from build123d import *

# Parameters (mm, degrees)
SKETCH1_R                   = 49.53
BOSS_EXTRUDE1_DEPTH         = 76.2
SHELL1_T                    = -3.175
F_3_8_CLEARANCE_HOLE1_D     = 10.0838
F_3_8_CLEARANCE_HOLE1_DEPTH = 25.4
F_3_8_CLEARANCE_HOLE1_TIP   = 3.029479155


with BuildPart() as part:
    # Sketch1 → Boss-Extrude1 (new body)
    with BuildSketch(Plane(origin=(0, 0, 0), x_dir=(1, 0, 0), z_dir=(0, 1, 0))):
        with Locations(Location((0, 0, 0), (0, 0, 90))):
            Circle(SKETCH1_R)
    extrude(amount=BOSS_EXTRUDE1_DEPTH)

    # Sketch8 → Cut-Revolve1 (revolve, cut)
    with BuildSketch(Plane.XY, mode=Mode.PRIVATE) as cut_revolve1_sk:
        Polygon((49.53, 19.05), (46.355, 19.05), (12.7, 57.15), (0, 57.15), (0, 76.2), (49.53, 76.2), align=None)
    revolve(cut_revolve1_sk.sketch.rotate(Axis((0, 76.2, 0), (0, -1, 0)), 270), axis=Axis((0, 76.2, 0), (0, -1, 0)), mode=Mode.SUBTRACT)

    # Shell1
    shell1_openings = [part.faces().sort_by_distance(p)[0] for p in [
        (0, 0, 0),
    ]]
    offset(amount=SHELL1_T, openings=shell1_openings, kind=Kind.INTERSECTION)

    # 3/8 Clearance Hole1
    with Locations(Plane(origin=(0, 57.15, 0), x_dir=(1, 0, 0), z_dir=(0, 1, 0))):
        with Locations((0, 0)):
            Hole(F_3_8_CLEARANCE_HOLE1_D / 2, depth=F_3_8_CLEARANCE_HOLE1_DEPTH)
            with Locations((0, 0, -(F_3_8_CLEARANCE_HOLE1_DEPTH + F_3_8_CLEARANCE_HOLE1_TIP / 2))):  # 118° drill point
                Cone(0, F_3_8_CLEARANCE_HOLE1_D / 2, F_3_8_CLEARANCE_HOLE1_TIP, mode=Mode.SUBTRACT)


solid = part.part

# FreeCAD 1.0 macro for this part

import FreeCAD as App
import Part
import Sketcher
from FreeCAD import Vector
Q = App.Units.Quantity


def faces_at(feature, points):
    """Names of the faces that lie closest to the given points."""
    faces = feature.Shape.Faces
    near = lambda p: min(range(len(faces)), key=lambda i: faces[i].distToShape(Part.Vertex(*p))[0])
    return sorted({f"Face{near(p) + 1}" for p in points})


def add_polygon(sketch, points):
    """Adds a closed chain of lines whose ends are joined by coincident constraints."""
    first, n = sketch.GeometryCount, len(points)
    for a, b in zip(points, points[1:] + points[:1]):
        sketch.addGeometry(Part.LineSegment(App.Vector(*a, 0), App.Vector(*b, 0)), False)
    for i in range(n):
        sketch.addConstraint(Sketcher.Constraint("Coincident", first + i, 2, first + (i + 1) % n, 1))

doc = App.newDocument("Part")
body = doc.addObject("PartDesign::Body", "Body")

sketch1 = body.newObject("Sketcher::SketchObject", "Sketch")
sketch1.AttachmentSupport = (doc.getObject("XZ_Plane"), [""])
sketch1.MapMode = "FlatFace"
sketch1.addGeometry(Part.Circle(Vector(0, 0, 0), Vector(0, 0, 1), 50), False)
sketch1.addConstraint([
    Sketcher.Constraint("Coincident", 0, 3, -1, 1),
    Sketcher.Constraint("Diameter", 0, Q("3.9 in")),
])
pad1 = body.newObject("PartDesign::Pad", "Pad")
pad1.Profile = sketch1
pad1.Length = Q("3 in")
pad1.Reversed = True

sketch2 = body.newObject("Sketcher::SketchObject", "Sketch001")
sketch2.AttachmentSupport = (doc.getObject("XY_Plane"), [""])
sketch2.MapMode = "FlatFace"
add_polygon(sketch2, [(46.4, 19.1), (49.5, 19.1), (49.5, 76.2), (0, 76.2), (0, 57.1), (12.7, 57.1)])
sketch2.addConstraint([
    Sketcher.Constraint("Horizontal", 0),
    Sketcher.Constraint("Vertical", 1),
    Sketcher.Constraint("Horizontal", 2),
    Sketcher.Constraint("Vertical", 3),
    Sketcher.Constraint("Horizontal", 4),
    Sketcher.Constraint("PointOnObject", 2, 2, -2),
    Sketcher.Constraint("DistanceX", 4, 1, 4, 2, Q("0.5 in")),
    Sketcher.Constraint("DistanceY", -1, 1, 1, 2, Q("3 in")),
    Sketcher.Constraint("DistanceX", 2, 2, 2, 1, Q("1.95 in")),
    Sketcher.Constraint("DistanceY", 1, 1, 1, 2, Q("2.25 in")),
    Sketcher.Constraint("DistanceY", 3, 2, 3, 1, Q("0.75 in")),
    Sketcher.Constraint("DistanceX", 0, 1, 0, 2, Q("0.125 in")),
])
groove = body.newObject("PartDesign::Groove", "Groove")
groove.Profile = sketch2
groove.ReferenceAxis = (sketch2, ["V_Axis"])
groove.Angle = 360
doc.recompute()

thickness = body.newObject("PartDesign::Thickness", "Thickness")
thickness.Base = (groove, faces_at(groove, [(0, 0, 0)]))
thickness.Value = Q("0.125 in")
thickness.Reversed = True
thickness.Join = "Intersection"

sketch3 = body.newObject("Sketcher::SketchObject", "Sketch002")
sketch3.AttachmentSupport = (doc.getObject("XZ_Plane"), [""])
sketch3.MapMode = "FlatFace"
sketch3.AttachmentOffset = App.Placement(Vector(0, 0, -2.25 * 25.4), App.Rotation())
sketch3.addGeometry(Part.Circle(Vector(0, 0, 0), Vector(0, 0, 1), 5), False)
sketch3.addConstraint([
    Sketcher.Constraint("Coincident", 0, 3, -1, 1),
    Sketcher.Constraint("Diameter", 0, Q("0.397 in")),
])
doc.recompute()
hole = body.newObject("PartDesign::Hole", "Hole")
hole.Profile = sketch3
hole.ThreadType = "None"
hole.Diameter = Q("0.397 in")
hole.DepthType = "Dimension"
hole.Depth = Q("1 in")
hole.DrillPoint = "Angled"
hole.DrillPointAngle = 118
hole.Reversed = True

doc.recompute()
